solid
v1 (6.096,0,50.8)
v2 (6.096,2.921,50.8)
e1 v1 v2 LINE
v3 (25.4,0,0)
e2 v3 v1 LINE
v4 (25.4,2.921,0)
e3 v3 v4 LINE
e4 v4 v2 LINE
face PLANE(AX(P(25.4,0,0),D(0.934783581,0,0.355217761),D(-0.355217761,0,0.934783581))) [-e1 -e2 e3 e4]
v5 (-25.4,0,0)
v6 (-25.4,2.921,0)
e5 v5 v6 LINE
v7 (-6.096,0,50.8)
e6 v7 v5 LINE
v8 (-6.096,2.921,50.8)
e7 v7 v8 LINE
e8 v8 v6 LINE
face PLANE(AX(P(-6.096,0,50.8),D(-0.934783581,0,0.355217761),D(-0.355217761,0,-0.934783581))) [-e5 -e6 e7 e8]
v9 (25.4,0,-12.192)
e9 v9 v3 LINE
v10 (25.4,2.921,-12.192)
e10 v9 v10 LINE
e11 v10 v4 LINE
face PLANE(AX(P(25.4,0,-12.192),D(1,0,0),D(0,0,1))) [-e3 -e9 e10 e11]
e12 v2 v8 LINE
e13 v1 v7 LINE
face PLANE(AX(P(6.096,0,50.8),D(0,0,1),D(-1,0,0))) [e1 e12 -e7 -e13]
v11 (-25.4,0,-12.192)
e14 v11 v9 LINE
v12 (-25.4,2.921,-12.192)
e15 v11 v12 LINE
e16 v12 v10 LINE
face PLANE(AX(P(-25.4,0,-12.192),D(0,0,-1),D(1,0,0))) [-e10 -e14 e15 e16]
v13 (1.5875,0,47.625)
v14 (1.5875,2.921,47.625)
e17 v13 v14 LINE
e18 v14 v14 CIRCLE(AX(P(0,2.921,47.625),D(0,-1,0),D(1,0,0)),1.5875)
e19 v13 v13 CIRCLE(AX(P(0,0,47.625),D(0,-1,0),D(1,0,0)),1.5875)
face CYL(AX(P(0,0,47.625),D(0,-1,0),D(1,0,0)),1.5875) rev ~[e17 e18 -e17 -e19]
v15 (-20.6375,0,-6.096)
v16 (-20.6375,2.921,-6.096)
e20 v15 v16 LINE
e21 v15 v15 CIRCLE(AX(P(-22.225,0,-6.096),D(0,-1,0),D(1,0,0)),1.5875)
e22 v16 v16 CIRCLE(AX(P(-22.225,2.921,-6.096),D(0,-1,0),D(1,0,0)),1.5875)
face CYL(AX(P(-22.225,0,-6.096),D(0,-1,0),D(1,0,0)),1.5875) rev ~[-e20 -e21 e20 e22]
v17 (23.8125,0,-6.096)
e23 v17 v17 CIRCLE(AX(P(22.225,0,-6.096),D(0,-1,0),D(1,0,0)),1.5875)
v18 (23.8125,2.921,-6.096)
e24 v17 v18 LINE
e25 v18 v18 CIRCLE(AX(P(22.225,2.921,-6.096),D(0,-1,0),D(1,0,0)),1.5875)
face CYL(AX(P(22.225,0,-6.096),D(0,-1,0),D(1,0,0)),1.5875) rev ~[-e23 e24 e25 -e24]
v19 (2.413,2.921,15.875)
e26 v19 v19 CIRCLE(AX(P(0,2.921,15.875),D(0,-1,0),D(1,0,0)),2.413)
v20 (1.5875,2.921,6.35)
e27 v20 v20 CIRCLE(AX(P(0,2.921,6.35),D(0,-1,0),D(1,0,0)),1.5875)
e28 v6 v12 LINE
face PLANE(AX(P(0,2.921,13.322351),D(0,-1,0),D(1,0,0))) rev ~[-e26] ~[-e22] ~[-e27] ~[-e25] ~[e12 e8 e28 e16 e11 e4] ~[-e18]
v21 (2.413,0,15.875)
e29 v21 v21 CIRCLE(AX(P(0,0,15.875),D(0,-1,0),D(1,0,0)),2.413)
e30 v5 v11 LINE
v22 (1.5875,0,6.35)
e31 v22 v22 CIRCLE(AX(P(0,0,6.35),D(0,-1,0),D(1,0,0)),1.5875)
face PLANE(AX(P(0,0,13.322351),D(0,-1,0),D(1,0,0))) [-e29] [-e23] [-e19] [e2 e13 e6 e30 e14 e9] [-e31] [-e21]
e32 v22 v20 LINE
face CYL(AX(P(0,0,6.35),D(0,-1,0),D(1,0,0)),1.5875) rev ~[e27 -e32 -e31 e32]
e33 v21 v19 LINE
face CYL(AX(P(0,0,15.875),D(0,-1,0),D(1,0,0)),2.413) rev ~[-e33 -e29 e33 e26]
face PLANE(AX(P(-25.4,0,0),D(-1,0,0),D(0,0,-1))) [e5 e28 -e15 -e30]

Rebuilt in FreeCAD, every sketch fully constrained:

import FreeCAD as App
import Part
import Sketcher

V = App.Vector
Q = App.Units.Quantity

doc = App.newDocument("Part")
body = doc.addObject("PartDesign::Body", "Body")

# Sketch on XZ plane
sketch1 = body.newObject("Sketcher::SketchObject", "Sketch")
sketch1.AttachmentSupport = (doc.getObject("XZ_Plane"), [""])
sketch1.MapMode = "FlatFace"
sketch1.addGeometry([
    Part.LineSegment(V(-6.1, 50.8, 0), V(-25.4, 0, 0)),  # 0
    Part.LineSegment(V(-25.4, 0, 0), V(-25.4, -12.2, 0)),  # 1
    Part.LineSegment(V(-25.4, -12.2, 0), V(25.4, -12.2, 0)),  # 2
    Part.LineSegment(V(25.4, -12.2, 0), V(25.4, 0, 0)),  # 3
    Part.LineSegment(V(25.4, 0, 0), V(6.1, 50.8, 0)),  # 4
    Part.LineSegment(V(6.1, 50.8, 0), V(-6.1, 50.8, 0)),  # 5
    Part.Circle(V(-22.2, -6.1, 0), V(0, 0, 1), 1.6),  # 6
    Part.Circle(V(0, 6.3, 0), V(0, 0, 1), 1.6),  # 7
    Part.Circle(V(22.2, -6.1, 0), V(0, 0, 1), 1.6),  # 8
    Part.Circle(V(0, 15.9, 0), V(0, 0, 1), 2.4),  # 9
    Part.Circle(V(0, 47.6, 0), V(0, 0, 1), 1.6),  # 10
], False)
sketch1.addConstraint([
    Sketcher.Constraint("Coincident", 0, 2, 1, 1),
    Sketcher.Constraint("Coincident", 1, 2, 2, 1),
    Sketcher.Constraint("Coincident", 2, 2, 3, 1),
    Sketcher.Constraint("Coincident", 3, 2, 4, 1),
    Sketcher.Constraint("Coincident", 4, 2, 5, 1),
    Sketcher.Constraint("Coincident", 5, 2, 0, 1),
    Sketcher.Constraint("Vertical", 1),
    Sketcher.Constraint("Horizontal", 2),
    Sketcher.Constraint("Vertical", 3),
    Sketcher.Constraint("Horizontal", 5),
    Sketcher.Constraint("Equal", 6, 7),
    Sketcher.Constraint("Equal", 7, 8),
    Sketcher.Constraint("Equal", 8, 10),
    Sketcher.Constraint("Symmetric", 0, 2, 3, 2, -1, 1),
    Sketcher.Constraint("Symmetric", 6, 3, 8, 3, -2),
    Sketcher.Constraint("PointOnObject", 7, 3, -2),
    Sketcher.Constraint("PointOnObject", 9, 3, -2),
    Sketcher.Constraint("PointOnObject", 10, 3, -2),
    Sketcher.Constraint("PointOnObject", 0, 2, -1),
    Sketcher.Constraint("Equal", 5, 1),
    Sketcher.Constraint("Equal", 0, 4),
    Sketcher.Constraint("Diameter", 9, Q("0.19 in")),
    Sketcher.Constraint("DistanceX", 2, 1, 2, 2, Q("2 in")),
    Sketcher.Constraint("Diameter", 6, Q("0.125 in")),
    Sketcher.Constraint("DistanceY", -1, 1, 4, 2, Q("2 in")),
    Sketcher.Constraint("DistanceX", 5, 2, 5, 1, Q("0.48 in")),
    Sketcher.Constraint("DistanceY", 6, 3, -1, 1, Q("0.24 in")),
    Sketcher.Constraint("DistanceY", -1, 1, 7, 3, Q("0.25 in")),
    Sketcher.Constraint("DistanceX", 6, 3, 8, 3, Q("1.75 in")),
    Sketcher.Constraint("DistanceY", 9, 3, 10, 3, Q("1.25 in")),
    Sketcher.Constraint("DistanceY", -1, 1, 9, 3, Q("0.625 in")),
])
pad1 = body.newObject("PartDesign::Pad", "Pad")
pad1.Profile = sketch1
pad1.Length = Q("0.115 in")
pad1.Reversed = True

doc.recompute()
